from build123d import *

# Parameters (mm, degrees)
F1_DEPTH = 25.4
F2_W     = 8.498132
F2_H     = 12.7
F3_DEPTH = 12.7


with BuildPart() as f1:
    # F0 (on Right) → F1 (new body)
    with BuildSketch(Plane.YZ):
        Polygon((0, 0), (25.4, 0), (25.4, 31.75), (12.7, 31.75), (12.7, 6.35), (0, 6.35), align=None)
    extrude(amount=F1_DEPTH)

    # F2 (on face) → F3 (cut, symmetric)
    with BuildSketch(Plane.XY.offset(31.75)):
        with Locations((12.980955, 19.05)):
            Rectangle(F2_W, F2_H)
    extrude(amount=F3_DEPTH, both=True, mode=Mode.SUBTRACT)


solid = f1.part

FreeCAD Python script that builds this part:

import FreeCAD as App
import Part
import Sketcher
Q = App.Units.Quantity

doc = App.newDocument("Part")
body = doc.addObject("PartDesign::Body", "Body")

# Sketch on YZ plane
sketch1 = body.newObject("Sketcher::SketchObject", "Sketch")
sketch1.AttachmentSupport = (doc.getObject("YZ_Plane"), [""])
sketch1.MapMode = "FlatFace"
sketch1.addGeometry([
    Part.LineSegment(App.Vector(0, 0, 0), App.Vector(25, 0, 0)),  # 0
    Part.LineSegment(App.Vector(25, 0, 0), App.Vector(25, 32, 0)),  # 1
    Part.LineSegment(App.Vector(25, 32, 0), App.Vector(13, 32, 0)),  # 2
    Part.LineSegment(App.Vector(13, 32, 0), App.Vector(13, 6, 0)),  # 3
    Part.LineSegment(App.Vector(13, 6, 0), App.Vector(0, 6, 0)),  # 4
    Part.LineSegment(App.Vector(0, 6, 0), App.Vector(0, 0, 0)),  # 5
], False)
sketch1.addConstraint([
    Sketcher.Constraint("Coincident", 0, 2, 1, 1),
    Sketcher.Constraint("Coincident", 1, 2, 2, 1),
    Sketcher.Constraint("Coincident", 2, 2, 3, 1),
    Sketcher.Constraint("Coincident", 3, 2, 4, 1),
    Sketcher.Constraint("Coincident", 4, 2, 5, 1),
    Sketcher.Constraint("Coincident", 5, 2, 0, 1),
    Sketcher.Constraint("Horizontal", 0),
    Sketcher.Constraint("Vertical", 1),
    Sketcher.Constraint("Horizontal", 2),
    Sketcher.Constraint("Vertical", 3),
    Sketcher.Constraint("Horizontal", 4),
    Sketcher.Constraint("Vertical", 5),
    Sketcher.Constraint("Coincident", 5, 2, -1, 1),
    Sketcher.Constraint("Equal", 2, 4),
    Sketcher.Constraint("Equal", 0, 3),
    Sketcher.Constraint("DistanceX", 0, 1, 0, 2, Q("1 in")),
    Sketcher.Constraint("DistanceY", 1, 1, 1, 2, Q("1.25 in")),
])
pad1 = body.newObject("PartDesign::Pad", "Pad")
pad1.Profile = sketch1
pad1.Length = Q("1 in")

# Sketch on XY plane
sketch2 = body.newObject("Sketcher::SketchObject", "Sketch001")
sketch2.AttachmentSupport = (doc.getObject("XY_Plane"), [""])
sketch2.MapMode = "FlatFace"
sketch2.AttachmentOffset = App.Placement(App.Vector(0, 0, 1.25 * 25.4), App.Rotation())
sketch2.addGeometry([
    Part.LineSegment(App.Vector(9, 25, 0), App.Vector(9, 13, 0)),
    Part.LineSegment(App.Vector(9, 13, 0), App.Vector(17, 13, 0)),
    Part.LineSegment(App.Vector(17, 13, 0), App.Vector(17, 25, 0)),
    Part.LineSegment(App.Vector(17, 25, 0), App.Vector(9, 25, 0)),
], False)
sketch2.addConstraint([
    Sketcher.Constraint("Coincident", 0, 2, 1, 1),
    Sketcher.Constraint("Coincident", 1, 2, 2, 1),
    Sketcher.Constraint("Coincident", 2, 2, 3, 1),
    Sketcher.Constraint("Coincident", 3, 2, 0, 1),
    Sketcher.Constraint("Vertical", 0),
    Sketcher.Constraint("Horizontal", 1),
    Sketcher.Constraint("Vertical", 2),
    Sketcher.Constraint("Horizontal", 3),
    Sketcher.Constraint("DistanceY", 0, 2, 0, 1, Q("0.5 in")),
    Sketcher.Constraint("DistanceY", -1, 1, 2, 2, Q("1 in")),
    Sketcher.Constraint("DistanceX", 1, 1, 1, 2, Q("8.498132 mm")),
    Sketcher.Constraint("DistanceX", -1, 1, 0, 2, Q("8.731889 mm")),
])
pocket1 = body.newObject("PartDesign::Pocket", "Pocket")
pocket1.Profile = sketch2
pocket1.Length = Q("1 in")
pocket1.Midplane = True

doc.recompute()
